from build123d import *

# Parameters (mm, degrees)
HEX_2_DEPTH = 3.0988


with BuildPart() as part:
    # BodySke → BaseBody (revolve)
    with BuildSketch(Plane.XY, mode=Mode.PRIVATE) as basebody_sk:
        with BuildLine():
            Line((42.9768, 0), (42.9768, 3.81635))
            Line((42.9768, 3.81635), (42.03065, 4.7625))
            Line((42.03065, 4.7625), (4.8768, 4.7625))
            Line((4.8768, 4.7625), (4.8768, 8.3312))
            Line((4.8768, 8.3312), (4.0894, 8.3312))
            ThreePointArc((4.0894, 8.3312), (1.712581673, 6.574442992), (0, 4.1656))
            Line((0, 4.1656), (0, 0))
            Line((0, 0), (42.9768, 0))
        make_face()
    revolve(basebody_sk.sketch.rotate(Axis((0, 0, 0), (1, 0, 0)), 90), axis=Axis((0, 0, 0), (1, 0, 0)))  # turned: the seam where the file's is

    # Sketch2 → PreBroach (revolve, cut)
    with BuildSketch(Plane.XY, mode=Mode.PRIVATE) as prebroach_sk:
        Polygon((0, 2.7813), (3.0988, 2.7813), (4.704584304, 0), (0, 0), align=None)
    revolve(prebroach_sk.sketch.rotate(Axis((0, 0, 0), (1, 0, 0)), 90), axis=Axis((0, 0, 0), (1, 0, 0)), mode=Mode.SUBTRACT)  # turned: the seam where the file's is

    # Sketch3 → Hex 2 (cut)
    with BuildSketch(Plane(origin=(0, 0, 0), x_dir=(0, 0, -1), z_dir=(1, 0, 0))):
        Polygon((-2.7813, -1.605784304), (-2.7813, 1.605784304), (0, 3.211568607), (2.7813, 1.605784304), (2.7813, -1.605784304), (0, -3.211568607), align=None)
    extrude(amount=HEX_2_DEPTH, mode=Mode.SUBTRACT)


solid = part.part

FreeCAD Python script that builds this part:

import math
import FreeCAD as App
import Part
import Sketcher

V = App.Vector
Q = App.Units.Quantity

doc = App.newDocument("Part")
body = doc.addObject("PartDesign::Body", "Body")

sketch1 = body.newObject("Sketcher::SketchObject", "Sketch")
sketch1.AttachmentSupport = (doc.getObject("XY_Plane"), [""])
sketch1.MapMode = "FlatFace"
sketch1.addGeometry([
    Part.LineSegment(V(42.9768, 0, 0), V(42.9768, 3.81635, 0)),
    Part.LineSegment(V(42.9768, 3.81635, 0), V(42.03065, 4.7625, 0)),
    Part.LineSegment(V(42.03065, 4.7625, 0), V(4.8768, 4.7625, 0)),
    Part.LineSegment(V(4.8768, 4.7625, 0), V(4.8768, 8.3312, 0)),
    Part.LineSegment(V(4.8768, 8.3312, 0), V(4.0894, 8.3312, 0)),
    Part.ArcOfCircle(Part.Circle(V(8.40953, 0, 0), V(0, 0, 1), 9.38469), math.radians(117.408921), math.radians(153.648817)),
    Part.LineSegment(V(0, 4.1656, 0), V(0, 0, 0)),
    Part.LineSegment(V(0, 0, 0), V(42.9768, 0, 0)),
], False)
sketch1.addConstraint([
    Sketcher.Constraint("Coincident", 0, 2, 1, 1),
    Sketcher.Constraint("Coincident", 1, 2, 2, 1),
    Sketcher.Constraint("Coincident", 2, 2, 3, 1),
    Sketcher.Constraint("Coincident", 3, 2, 4, 1),
    Sketcher.Constraint("Coincident", 4, 2, 5, 1),
    Sketcher.Constraint("Coincident", 5, 2, 6, 1),
    Sketcher.Constraint("Coincident", 6, 2, 7, 1),
    Sketcher.Constraint("Coincident", 7, 2, 0, 1),
    Sketcher.Constraint("Vertical", 0),
    Sketcher.Constraint("Horizontal", 2),
    Sketcher.Constraint("Vertical", 3),
    Sketcher.Constraint("Horizontal", 4),
    Sketcher.Constraint("Vertical", 6),
    Sketcher.Constraint("Horizontal", 7),
    Sketcher.Constraint("Coincident", 6, 2, -1, 1),
    Sketcher.Constraint("PointOnObject", 5, 3, -1),
    Sketcher.Constraint("Angle", 1, Q("135 deg")),
    Sketcher.Constraint("DistanceX", 2, 2, 0, 2, Q("1.5 in")),
    Sketcher.Constraint("DistanceX", 4, 2, 4, 1, Q("0.031 in")),
    Sketcher.Constraint("DistanceX", 7, 1, 7, 2, Q("1.692 in")),
    Sketcher.Constraint("DistanceY", 6, 2, 6, 1, Q("0.164 in")),
    Sketcher.Constraint("DistanceY", 3, 1, 3, 2, Q("0.1405 in")),
    Sketcher.Constraint("DistanceY", -1, 1, 1, 2, Q("0.1875 in")),
    Sketcher.Constraint("DistanceX", 2, 2, 2, 1, 37.15385),
])
revolution = body.newObject("PartDesign::Revolution", "Revolution")
revolution.Profile = sketch1
revolution.ReferenceAxis = (sketch1, ["H_Axis"])
revolution.Angle = 360

sketch2 = body.newObject("Sketcher::SketchObject", "Sketch001")
sketch2.AttachmentSupport = (doc.getObject("XY_Plane"), [""])
sketch2.MapMode = "FlatFace"
sketch2.addGeometry([
    Part.LineSegment(V(3.0988, 2.7813, 0), V(0, 2.7813, 0)),
    Part.LineSegment(V(0, 2.7813, 0), V(0, 0, 0)),
    Part.LineSegment(V(0, 0, 0), V(4.704584, 0, 0)),
    Part.LineSegment(V(4.704584, 0, 0), V(3.0988, 2.7813, 0)),
], False)
sketch2.addConstraint([
    Sketcher.Constraint("Coincident", 0, 2, 1, 1),
    Sketcher.Constraint("Coincident", 1, 2, 2, 1),
    Sketcher.Constraint("Coincident", 2, 2, 3, 1),
    Sketcher.Constraint("Coincident", 3, 2, 0, 1),
    Sketcher.Constraint("Horizontal", 0),
    Sketcher.Constraint("Vertical", 1),
    Sketcher.Constraint("Horizontal", 2),
    Sketcher.Constraint("Coincident", 1, 2, -1, 1),
    Sketcher.Constraint("Angle", 3, Q("120 deg")),
    Sketcher.Constraint("DistanceX", 0, 2, 0, 1, Q("0.122 in")),
    Sketcher.Constraint("DistanceY", 1, 2, 1, 1, Q("0.1095 in")),
])
groove = body.newObject("PartDesign::Groove", "Groove")
groove.Profile = sketch2
groove.ReferenceAxis = (sketch2, ["H_Axis"])
groove.Angle = 360

sketch3 = body.newObject("Sketcher::SketchObject", "Sketch002")
sketch3.AttachmentSupport = (doc.getObject("YZ_Plane"), [""])
sketch3.MapMode = "FlatFace"
sketch3.addGeometry([
    Part.LineSegment(V(1.605784, 2.7813, 0), V(-1.605784, 2.7813, 0)),
    Part.LineSegment(V(-1.605784, 2.7813, 0), V(-3.211569, 0, 0)),
    Part.LineSegment(V(-3.211569, 0, 0), V(-1.605784, -2.7813, 0)),
    Part.LineSegment(V(-1.605784, -2.7813, 0), V(1.605784, -2.7813, 0)),
    Part.LineSegment(V(1.605784, -2.7813, 0), V(3.211569, 0, 0)),
    Part.LineSegment(V(3.211569, 0, 0), V(1.605784, 2.7813, 0)),
], False)
sketch3.addConstraint([
    Sketcher.Constraint("Coincident", 0, 2, 1, 1),
    Sketcher.Constraint("Coincident", 1, 2, 2, 1),
    Sketcher.Constraint("Coincident", 2, 2, 3, 1),
    Sketcher.Constraint("Coincident", 3, 2, 4, 1),
    Sketcher.Constraint("Coincident", 4, 2, 5, 1),
    Sketcher.Constraint("Coincident", 5, 2, 0, 1),
    Sketcher.Constraint("Horizontal", 0),
    Sketcher.Constraint("Horizontal", 3),
    Sketcher.Constraint("Symmetric", 0, 2, 3, 2, -1, 1),
    Sketcher.Constraint("Symmetric", 1, 2, 4, 2, -1, 1),
    Sketcher.Constraint("PointOnObject", 1, 2, -1),
    Sketcher.Constraint("Parallel", 2, 5),
    Sketcher.Constraint("Vertical", 0, 2, 2, 2),
    Sketcher.Constraint("Angle", 1, Q("-120 deg")),
    Sketcher.Constraint("DistanceY", 2, 2, 0, 2, Q("0.219 in")),
    Sketcher.Constraint("DistanceX", 0, 2, 0, 1, 3.211569),
])
pocket1 = body.newObject("PartDesign::Pocket", "Pocket")
pocket1.Profile = sketch3
pocket1.Length = Q("0.122 in")
pocket1.Reversed = True

doc.recompute()
